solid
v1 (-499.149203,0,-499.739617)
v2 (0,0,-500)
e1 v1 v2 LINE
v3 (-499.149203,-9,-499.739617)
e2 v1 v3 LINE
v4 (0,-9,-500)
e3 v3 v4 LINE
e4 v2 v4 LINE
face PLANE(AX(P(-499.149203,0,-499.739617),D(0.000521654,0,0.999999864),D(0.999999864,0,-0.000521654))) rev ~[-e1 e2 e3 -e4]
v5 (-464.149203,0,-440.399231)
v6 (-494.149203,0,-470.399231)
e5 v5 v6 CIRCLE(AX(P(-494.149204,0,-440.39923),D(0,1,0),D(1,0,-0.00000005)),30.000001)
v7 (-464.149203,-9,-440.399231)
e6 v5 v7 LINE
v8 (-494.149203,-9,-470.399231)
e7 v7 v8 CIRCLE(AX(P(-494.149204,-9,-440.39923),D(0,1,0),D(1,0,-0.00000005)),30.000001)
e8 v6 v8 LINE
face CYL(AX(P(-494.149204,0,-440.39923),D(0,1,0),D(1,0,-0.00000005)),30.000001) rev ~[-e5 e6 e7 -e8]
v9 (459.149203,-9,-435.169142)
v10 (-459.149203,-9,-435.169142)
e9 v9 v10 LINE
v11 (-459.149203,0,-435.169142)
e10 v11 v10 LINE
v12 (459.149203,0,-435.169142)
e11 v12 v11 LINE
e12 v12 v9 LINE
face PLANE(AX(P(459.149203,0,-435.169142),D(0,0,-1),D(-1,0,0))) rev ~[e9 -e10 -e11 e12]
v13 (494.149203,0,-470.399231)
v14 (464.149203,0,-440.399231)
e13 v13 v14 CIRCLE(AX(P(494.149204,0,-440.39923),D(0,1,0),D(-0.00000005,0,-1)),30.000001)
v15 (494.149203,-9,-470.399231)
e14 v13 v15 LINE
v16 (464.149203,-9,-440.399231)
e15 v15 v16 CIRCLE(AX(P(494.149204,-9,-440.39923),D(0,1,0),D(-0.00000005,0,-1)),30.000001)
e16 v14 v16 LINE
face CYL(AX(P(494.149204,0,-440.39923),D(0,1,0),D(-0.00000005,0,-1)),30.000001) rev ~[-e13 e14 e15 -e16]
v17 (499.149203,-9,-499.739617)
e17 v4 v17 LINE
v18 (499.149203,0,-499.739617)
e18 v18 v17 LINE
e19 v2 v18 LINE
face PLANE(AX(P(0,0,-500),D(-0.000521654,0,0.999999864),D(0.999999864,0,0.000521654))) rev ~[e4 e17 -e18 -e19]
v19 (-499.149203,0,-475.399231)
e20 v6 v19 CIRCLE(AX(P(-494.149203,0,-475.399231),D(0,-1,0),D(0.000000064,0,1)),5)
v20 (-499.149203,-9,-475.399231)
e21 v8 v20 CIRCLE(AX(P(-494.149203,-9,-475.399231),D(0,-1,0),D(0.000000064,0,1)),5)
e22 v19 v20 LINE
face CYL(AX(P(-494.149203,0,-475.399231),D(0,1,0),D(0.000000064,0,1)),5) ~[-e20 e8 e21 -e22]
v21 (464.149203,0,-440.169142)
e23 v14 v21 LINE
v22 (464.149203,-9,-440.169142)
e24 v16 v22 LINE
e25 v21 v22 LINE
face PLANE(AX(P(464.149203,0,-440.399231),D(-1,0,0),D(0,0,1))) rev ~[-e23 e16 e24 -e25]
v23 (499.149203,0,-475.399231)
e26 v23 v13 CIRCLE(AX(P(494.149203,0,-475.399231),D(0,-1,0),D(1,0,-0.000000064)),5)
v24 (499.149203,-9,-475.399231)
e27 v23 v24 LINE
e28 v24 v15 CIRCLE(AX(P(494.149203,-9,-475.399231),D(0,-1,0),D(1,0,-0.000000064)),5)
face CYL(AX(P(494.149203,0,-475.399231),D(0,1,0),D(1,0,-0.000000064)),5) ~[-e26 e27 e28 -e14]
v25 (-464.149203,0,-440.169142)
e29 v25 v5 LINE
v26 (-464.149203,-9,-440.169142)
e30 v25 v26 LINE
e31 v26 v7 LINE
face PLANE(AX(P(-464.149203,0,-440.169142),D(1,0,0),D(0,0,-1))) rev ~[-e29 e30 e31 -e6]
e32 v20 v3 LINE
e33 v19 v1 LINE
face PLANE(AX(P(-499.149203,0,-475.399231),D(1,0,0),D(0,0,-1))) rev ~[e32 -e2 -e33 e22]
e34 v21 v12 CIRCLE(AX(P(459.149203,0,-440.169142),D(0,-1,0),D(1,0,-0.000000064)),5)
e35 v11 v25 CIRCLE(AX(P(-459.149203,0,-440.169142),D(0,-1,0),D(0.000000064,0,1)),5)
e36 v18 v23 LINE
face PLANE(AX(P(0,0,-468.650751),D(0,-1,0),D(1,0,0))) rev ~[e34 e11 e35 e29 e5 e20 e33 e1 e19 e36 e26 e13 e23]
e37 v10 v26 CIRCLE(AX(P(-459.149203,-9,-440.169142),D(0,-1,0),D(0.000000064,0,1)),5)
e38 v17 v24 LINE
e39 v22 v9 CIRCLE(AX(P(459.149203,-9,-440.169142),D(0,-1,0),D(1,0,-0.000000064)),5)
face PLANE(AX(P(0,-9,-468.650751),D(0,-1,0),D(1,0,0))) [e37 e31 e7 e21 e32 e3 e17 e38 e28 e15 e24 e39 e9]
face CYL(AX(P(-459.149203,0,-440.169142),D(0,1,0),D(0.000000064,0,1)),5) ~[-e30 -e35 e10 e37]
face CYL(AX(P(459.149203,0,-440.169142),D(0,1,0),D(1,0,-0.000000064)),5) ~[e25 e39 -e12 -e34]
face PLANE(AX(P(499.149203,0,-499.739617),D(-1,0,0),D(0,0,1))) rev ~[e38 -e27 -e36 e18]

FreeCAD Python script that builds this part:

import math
import FreeCAD as App
import Part
import Sketcher
Q = App.Units.Quantity

doc = App.newDocument("Part")
body = doc.addObject("PartDesign::Body", "Body")

# Sketch on XZ plane
sketch1 = doc.addObject("Sketcher::SketchObject", "Sketch")
body.addObject(sketch1)
sketch1.AttachmentSupport = (doc.XZ_Plane, [""])
sketch1.MapMode = "FlatFace"
sketch1.addGeometry(Part.LineSegment(App.Vector(499.15, -499.74, 0), App.Vector(499.15, -475.4, 0)), False)
sketch1.addGeometry(Part.ArcOfCircle(Part.Circle(App.Vector(494.15, -475.4, 0), App.Vector(0, 0, 1), 5), math.radians(0), math.radians(90)), False)
sketch1.addGeometry(Part.ArcOfCircle(Part.Circle(App.Vector(494.15, -440.4, 0), App.Vector(0, 0, 1), 30), math.radians(-180), math.radians(-90)), False)
sketch1.addGeometry(Part.LineSegment(App.Vector(464.15, -440.4, 0), App.Vector(464.15, -440.17, 0)), False)
sketch1.addGeometry(Part.ArcOfCircle(Part.Circle(App.Vector(459.15, -440.17, 0), App.Vector(0, 0, 1), 5), math.radians(0), math.radians(90)), False)
sketch1.addGeometry(Part.LineSegment(App.Vector(459.15, -435.17, 0), App.Vector(-459.15, -435.17, 0)), False)
sketch1.addGeometry(Part.ArcOfCircle(Part.Circle(App.Vector(-459.15, -440.17, 0), App.Vector(0, 0, 1), 5), math.radians(90), math.radians(180)), False)
sketch1.addGeometry(Part.LineSegment(App.Vector(-464.15, -440.17, 0), App.Vector(-464.15, -440.4, 0)), False)
sketch1.addGeometry(Part.ArcOfCircle(Part.Circle(App.Vector(-494.15, -440.4, 0), App.Vector(0, 0, 1), 30), math.radians(-90), math.radians(0)), False)
sketch1.addGeometry(Part.ArcOfCircle(Part.Circle(App.Vector(-494.15, -475.4, 0), App.Vector(0, 0, 1), 5), math.radians(90), math.radians(180)), False)
sketch1.addGeometry(Part.LineSegment(App.Vector(-499.15, -475.4, 0), App.Vector(-499.15, -499.74, 0)), False)
sketch1.addGeometry(Part.LineSegment(App.Vector(-499.15, -499.74, 0), App.Vector(0, -500, 0)), False)
sketch1.addGeometry(Part.LineSegment(App.Vector(0, -500, 0), App.Vector(499.15, -499.74, 0)), False)
sketch1.addConstraint(Sketcher.Constraint("Tangent", 0, 2, 1, 1))
sketch1.addConstraint(Sketcher.Constraint("Tangent", 1, 2, 2, 2))
sketch1.addConstraint(Sketcher.Constraint("Tangent", 2, 1, 3, 1))
sketch1.addConstraint(Sketcher.Constraint("Tangent", 3, 2, 4, 1))
sketch1.addConstraint(Sketcher.Constraint("Tangent", 4, 2, 5, 1))
sketch1.addConstraint(Sketcher.Constraint("Tangent", 5, 2, 6, 1))
sketch1.addConstraint(Sketcher.Constraint("Tangent", 6, 2, 7, 1))
sketch1.addConstraint(Sketcher.Constraint("Tangent", 7, 2, 8, 2))
sketch1.addConstraint(Sketcher.Constraint("Tangent", 8, 1, 9, 1))
sketch1.addConstraint(Sketcher.Constraint("Tangent", 9, 2, 10, 1))
sketch1.addConstraint(Sketcher.Constraint("Coincident", 10, 2, 11, 1))
sketch1.addConstraint(Sketcher.Constraint("Coincident", 11, 2, 12, 1))
sketch1.addConstraint(Sketcher.Constraint("Coincident", 12, 2, 0, 1))
sketch1.addConstraint(Sketcher.Constraint("Vertical", 0))
sketch1.addConstraint(Sketcher.Constraint("Vertical", 3))
sketch1.addConstraint(Sketcher.Constraint("Horizontal", 5))
sketch1.addConstraint(Sketcher.Constraint("Vertical", 7))
sketch1.addConstraint(Sketcher.Constraint("Vertical", 10))
sketch1.addConstraint(Sketcher.Constraint("Equal", 1, 4))
sketch1.addConstraint(Sketcher.Constraint("Equal", 4, 6))
sketch1.addConstraint(Sketcher.Constraint("Equal", 2, 8))
sketch1.addConstraint(Sketcher.Constraint("Equal", 6, 9))
sketch1.addConstraint(Sketcher.Constraint("Symmetric", 2, 3, 8, 3, -2))
sketch1.addConstraint(Sketcher.Constraint("Symmetric", 10, 2, 12, 2, -2))
sketch1.addConstraint(Sketcher.Constraint("PointOnObject", 11, 2, -2))
sketch1.addConstraint(Sketcher.Constraint("Vertical", 1, 3, 2, 3))
sketch1.addConstraint(Sketcher.Constraint("Radius", 1, Q("5 mm")))
sketch1.addConstraint(Sketcher.Constraint("Radius", 2, Q("30.000001 mm")))
sketch1.addConstraint(Sketcher.Constraint("DistanceY", 11, 2, -1, 1, Q("500 mm")))
sketch1.addConstraint(Sketcher.Constraint("DistanceY", 3, 1, 3, 2, Q("0.230089 mm")))
sketch1.addConstraint(Sketcher.Constraint("Distance", 11, Q("499.149271 mm")))
sketch1.addConstraint(Sketcher.Constraint("DistanceY", 0, 1, 0, 2, Q("24.340386 mm")))
sketch1.addConstraint(Sketcher.Constraint("DistanceY", 1, 3, -1, 1, Q("475.399231 mm")))
pad1 = doc.addObject("PartDesign::Pad", "Pad")
body.addObject(pad1)
pad1.Profile = sketch1
pad1.Length = 9

doc.recompute()
